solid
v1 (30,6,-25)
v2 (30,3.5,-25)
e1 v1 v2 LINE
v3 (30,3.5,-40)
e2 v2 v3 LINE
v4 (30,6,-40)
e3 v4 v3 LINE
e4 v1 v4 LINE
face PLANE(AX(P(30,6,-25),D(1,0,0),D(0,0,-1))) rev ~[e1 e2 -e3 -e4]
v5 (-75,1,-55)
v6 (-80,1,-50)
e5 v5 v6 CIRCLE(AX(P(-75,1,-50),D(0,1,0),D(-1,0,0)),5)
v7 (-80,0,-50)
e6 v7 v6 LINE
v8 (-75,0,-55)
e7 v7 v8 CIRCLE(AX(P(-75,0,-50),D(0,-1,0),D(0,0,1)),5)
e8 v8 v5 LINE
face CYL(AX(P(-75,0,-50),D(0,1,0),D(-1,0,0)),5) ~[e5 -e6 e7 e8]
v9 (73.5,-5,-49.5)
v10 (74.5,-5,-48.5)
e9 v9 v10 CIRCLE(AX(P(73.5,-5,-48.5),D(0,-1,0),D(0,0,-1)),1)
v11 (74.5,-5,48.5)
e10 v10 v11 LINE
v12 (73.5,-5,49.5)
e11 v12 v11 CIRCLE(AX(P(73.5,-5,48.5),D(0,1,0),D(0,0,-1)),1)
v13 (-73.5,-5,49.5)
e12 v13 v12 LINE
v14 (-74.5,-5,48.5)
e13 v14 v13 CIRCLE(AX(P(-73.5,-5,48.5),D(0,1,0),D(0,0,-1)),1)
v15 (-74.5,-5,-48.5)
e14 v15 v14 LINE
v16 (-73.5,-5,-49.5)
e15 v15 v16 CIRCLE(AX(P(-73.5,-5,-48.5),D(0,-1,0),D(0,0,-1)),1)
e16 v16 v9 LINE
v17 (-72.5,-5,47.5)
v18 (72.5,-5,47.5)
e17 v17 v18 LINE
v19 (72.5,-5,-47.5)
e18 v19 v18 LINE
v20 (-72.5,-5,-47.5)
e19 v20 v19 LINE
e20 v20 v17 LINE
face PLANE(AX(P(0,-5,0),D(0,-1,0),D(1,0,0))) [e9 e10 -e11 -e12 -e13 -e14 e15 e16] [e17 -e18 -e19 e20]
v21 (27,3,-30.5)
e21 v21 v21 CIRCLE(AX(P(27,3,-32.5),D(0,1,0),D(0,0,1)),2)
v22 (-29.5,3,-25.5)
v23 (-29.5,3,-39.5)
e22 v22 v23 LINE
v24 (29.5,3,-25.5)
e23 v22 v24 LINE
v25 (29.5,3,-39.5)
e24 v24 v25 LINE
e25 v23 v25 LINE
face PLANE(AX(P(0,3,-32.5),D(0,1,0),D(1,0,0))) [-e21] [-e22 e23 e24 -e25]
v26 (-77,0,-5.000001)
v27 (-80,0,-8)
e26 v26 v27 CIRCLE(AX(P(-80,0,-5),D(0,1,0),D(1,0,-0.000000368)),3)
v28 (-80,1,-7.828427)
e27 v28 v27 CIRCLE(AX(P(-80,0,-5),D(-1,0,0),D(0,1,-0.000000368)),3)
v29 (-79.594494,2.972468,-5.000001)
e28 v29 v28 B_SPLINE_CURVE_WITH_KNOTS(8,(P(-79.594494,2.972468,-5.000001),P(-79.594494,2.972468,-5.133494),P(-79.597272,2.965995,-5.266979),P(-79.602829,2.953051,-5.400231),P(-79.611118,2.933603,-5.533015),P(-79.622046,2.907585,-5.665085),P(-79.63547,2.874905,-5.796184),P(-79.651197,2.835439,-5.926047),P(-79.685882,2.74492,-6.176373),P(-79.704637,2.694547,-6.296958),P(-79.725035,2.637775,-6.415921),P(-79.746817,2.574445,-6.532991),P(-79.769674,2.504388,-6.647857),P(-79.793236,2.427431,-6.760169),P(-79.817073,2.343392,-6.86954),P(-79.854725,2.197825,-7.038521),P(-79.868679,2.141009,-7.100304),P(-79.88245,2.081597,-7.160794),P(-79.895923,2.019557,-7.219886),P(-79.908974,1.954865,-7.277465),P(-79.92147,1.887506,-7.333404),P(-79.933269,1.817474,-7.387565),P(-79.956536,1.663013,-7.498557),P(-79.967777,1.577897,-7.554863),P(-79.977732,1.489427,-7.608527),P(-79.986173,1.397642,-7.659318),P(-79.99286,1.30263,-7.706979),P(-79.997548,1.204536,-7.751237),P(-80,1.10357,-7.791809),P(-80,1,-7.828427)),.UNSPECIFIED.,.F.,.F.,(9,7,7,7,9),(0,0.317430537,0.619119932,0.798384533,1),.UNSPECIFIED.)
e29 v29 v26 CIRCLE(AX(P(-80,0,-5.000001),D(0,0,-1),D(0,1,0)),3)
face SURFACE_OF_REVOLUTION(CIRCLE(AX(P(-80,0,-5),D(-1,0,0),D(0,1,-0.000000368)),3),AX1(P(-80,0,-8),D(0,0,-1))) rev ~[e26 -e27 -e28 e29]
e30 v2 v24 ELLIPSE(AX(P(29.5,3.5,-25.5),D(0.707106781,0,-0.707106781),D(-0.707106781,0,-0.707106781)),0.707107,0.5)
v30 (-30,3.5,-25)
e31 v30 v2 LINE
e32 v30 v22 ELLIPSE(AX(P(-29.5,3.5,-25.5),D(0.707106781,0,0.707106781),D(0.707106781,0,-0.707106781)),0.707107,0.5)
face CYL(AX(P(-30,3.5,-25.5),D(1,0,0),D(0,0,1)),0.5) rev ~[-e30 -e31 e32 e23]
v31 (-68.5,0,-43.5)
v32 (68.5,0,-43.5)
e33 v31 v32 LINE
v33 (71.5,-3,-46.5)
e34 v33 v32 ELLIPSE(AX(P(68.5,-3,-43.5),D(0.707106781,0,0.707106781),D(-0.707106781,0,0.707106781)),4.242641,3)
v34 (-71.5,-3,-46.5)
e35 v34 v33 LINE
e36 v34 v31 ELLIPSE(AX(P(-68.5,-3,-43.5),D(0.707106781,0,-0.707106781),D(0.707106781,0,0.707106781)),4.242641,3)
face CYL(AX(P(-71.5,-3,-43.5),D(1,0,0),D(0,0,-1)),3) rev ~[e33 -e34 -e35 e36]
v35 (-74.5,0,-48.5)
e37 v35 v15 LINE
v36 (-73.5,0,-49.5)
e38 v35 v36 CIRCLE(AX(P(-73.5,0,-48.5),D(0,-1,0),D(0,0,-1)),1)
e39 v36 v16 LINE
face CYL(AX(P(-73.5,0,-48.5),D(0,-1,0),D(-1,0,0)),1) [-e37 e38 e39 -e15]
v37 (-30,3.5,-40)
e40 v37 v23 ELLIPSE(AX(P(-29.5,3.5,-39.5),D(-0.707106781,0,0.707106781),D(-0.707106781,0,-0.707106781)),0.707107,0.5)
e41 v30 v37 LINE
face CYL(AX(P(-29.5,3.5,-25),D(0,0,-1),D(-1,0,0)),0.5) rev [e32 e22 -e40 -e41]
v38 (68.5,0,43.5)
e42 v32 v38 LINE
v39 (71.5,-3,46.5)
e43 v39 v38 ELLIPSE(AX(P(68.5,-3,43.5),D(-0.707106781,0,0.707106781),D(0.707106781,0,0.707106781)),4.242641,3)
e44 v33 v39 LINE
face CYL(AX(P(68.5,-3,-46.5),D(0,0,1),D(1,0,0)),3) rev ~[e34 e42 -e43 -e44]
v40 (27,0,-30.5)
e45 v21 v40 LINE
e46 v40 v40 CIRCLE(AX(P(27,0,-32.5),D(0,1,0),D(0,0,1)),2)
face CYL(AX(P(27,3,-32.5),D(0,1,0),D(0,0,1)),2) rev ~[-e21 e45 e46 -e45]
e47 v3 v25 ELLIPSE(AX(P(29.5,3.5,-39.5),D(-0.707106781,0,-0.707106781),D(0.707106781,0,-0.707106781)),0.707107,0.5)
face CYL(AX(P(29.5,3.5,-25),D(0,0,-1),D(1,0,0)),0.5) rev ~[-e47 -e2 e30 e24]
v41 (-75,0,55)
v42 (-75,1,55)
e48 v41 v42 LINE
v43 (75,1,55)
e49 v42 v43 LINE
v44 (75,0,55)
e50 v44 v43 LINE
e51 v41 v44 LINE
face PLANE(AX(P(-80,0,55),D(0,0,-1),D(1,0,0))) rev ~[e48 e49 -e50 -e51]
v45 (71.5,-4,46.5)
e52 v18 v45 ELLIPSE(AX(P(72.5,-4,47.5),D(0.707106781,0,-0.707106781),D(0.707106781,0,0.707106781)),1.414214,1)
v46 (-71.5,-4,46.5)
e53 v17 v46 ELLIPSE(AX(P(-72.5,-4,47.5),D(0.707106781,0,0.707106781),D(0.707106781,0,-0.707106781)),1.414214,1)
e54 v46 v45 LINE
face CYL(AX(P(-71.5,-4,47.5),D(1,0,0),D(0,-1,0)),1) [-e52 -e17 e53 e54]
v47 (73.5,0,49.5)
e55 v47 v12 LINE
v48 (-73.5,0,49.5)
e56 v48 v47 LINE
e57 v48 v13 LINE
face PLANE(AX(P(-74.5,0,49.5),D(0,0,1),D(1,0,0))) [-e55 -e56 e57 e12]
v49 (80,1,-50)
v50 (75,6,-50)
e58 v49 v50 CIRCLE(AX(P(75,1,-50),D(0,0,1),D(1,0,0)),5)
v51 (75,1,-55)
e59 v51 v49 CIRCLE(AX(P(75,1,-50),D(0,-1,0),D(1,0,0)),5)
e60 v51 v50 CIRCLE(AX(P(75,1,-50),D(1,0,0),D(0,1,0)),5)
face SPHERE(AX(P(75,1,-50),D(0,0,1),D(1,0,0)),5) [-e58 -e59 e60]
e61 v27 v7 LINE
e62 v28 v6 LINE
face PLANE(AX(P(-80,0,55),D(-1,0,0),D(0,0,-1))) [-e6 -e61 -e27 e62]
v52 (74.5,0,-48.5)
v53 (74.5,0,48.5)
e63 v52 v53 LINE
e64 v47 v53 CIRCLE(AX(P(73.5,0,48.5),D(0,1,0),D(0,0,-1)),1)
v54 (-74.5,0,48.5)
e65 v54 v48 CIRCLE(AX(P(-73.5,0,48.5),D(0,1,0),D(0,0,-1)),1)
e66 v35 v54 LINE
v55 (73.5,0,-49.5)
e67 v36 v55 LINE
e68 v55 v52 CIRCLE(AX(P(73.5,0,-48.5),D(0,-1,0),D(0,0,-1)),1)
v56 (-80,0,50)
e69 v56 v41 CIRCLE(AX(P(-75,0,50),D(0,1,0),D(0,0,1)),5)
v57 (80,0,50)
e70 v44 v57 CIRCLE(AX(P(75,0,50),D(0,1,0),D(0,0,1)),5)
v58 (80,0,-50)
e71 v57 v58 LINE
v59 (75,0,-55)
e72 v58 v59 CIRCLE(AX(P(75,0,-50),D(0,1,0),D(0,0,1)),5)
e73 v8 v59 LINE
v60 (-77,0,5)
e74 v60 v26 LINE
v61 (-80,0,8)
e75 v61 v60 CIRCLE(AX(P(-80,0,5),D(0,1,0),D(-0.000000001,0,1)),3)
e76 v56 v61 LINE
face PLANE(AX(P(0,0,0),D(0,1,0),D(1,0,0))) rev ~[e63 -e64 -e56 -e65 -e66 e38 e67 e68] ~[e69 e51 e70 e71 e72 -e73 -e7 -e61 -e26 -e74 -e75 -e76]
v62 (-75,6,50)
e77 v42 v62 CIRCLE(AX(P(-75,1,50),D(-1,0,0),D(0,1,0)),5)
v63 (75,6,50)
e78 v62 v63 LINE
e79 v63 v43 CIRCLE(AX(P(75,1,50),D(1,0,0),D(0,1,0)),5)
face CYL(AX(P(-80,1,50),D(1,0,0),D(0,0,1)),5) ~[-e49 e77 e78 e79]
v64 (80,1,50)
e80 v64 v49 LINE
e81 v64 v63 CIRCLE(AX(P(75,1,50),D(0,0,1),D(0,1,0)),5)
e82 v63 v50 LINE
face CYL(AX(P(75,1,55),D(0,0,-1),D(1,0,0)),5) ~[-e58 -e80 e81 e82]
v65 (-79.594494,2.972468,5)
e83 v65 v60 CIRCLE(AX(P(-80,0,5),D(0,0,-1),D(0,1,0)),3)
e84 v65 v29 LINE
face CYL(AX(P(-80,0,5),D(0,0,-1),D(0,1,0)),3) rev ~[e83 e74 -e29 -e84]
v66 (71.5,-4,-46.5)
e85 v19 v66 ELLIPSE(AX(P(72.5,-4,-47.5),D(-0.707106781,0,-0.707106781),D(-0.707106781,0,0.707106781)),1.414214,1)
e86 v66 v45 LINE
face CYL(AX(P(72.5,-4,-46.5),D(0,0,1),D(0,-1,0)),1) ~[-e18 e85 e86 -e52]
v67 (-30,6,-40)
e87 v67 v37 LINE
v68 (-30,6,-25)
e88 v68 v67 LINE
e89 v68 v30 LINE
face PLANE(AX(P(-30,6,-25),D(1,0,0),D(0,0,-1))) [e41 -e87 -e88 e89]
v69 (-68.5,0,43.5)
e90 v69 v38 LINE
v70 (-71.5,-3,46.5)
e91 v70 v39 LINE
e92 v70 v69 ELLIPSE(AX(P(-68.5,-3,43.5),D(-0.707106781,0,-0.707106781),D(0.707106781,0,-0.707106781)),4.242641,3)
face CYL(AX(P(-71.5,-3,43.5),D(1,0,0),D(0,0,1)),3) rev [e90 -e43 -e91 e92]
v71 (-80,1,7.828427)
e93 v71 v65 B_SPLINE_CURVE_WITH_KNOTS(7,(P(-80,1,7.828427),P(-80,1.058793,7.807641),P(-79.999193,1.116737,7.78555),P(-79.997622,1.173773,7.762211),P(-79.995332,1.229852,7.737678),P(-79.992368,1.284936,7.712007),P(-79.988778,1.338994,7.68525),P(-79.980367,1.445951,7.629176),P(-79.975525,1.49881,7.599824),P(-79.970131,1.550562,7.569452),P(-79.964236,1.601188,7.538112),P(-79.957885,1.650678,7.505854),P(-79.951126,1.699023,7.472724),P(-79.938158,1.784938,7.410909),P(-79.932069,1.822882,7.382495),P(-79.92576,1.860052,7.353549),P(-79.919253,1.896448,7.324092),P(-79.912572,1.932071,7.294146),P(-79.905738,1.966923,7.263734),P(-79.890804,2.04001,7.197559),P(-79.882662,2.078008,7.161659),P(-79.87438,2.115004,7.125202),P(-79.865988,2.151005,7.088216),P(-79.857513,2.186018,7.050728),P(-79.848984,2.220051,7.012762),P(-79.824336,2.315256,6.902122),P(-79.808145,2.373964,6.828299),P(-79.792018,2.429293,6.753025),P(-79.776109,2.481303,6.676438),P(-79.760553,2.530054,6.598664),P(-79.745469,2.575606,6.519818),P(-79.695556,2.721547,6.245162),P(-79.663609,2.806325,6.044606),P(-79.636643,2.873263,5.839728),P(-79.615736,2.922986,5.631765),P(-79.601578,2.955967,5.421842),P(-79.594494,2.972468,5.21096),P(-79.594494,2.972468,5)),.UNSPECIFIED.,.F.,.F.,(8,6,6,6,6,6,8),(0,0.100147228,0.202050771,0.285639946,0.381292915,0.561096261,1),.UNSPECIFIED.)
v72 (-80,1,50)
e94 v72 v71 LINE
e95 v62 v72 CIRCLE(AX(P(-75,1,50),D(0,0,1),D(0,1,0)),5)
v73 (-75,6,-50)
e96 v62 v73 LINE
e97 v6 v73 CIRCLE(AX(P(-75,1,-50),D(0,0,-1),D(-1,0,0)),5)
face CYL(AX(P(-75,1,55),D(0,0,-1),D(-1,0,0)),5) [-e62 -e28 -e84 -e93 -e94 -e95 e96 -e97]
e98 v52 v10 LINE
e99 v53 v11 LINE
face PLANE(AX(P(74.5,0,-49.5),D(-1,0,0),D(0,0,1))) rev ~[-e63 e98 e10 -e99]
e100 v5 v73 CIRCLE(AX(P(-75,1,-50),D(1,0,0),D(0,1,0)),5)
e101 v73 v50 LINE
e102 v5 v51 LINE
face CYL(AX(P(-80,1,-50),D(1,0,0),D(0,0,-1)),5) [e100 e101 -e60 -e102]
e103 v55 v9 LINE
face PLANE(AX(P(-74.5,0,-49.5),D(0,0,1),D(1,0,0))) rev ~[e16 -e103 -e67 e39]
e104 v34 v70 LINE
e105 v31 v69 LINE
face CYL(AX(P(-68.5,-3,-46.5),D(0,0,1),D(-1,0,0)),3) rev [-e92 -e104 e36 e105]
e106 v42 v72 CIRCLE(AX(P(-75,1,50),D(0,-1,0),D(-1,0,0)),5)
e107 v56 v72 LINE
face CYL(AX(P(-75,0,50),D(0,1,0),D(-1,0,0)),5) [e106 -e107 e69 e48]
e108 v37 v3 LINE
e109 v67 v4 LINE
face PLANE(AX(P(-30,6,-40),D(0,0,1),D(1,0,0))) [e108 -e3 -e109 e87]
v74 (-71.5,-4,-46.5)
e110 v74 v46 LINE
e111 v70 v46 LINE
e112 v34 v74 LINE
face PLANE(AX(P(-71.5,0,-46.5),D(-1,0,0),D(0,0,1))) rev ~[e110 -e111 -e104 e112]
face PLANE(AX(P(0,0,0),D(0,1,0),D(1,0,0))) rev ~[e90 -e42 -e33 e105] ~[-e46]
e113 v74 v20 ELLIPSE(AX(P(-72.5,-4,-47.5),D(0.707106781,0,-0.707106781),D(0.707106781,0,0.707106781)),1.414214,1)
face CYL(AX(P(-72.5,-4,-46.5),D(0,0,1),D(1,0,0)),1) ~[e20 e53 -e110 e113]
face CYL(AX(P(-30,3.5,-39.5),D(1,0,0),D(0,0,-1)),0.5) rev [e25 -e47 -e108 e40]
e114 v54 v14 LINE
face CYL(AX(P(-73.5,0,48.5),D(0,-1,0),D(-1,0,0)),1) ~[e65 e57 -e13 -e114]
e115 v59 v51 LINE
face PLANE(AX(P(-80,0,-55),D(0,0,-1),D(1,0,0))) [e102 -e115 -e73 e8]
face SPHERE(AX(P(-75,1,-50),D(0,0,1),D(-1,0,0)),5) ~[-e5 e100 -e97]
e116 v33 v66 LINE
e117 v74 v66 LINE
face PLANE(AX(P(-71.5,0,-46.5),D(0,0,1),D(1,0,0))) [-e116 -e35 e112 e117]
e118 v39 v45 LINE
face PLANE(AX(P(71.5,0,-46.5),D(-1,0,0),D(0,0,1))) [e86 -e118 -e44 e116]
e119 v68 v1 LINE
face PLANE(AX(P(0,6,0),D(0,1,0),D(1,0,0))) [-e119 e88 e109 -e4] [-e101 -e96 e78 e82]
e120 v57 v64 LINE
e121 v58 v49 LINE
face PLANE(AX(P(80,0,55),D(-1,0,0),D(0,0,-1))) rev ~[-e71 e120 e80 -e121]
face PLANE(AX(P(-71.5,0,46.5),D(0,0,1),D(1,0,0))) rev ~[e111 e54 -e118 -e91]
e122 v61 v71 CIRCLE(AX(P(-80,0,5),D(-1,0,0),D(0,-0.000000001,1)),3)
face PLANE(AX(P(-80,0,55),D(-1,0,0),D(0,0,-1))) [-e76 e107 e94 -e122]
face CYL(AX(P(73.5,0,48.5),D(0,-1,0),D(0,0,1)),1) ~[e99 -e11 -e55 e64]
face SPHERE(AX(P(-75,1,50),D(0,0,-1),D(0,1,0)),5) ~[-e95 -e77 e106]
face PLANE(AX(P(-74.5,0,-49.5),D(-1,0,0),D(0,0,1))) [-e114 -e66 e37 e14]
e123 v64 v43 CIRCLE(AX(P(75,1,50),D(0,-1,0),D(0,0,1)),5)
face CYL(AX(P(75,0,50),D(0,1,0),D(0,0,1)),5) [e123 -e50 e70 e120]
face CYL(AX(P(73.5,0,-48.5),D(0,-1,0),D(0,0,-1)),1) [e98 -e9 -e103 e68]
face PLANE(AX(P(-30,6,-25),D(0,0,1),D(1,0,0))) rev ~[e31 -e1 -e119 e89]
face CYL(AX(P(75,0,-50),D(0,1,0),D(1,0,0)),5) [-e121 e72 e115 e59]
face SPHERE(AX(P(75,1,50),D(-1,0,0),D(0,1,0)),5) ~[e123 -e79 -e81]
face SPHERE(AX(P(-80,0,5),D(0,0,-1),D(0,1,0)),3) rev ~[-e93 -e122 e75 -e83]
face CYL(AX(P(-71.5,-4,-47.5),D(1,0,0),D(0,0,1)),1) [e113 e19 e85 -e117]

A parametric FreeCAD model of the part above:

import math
import FreeCAD as App
import Part
import Sketcher


def edges_at(feature, points):
    """Names of the edges that pass closest to the given points."""
    edges = feature.Shape.Edges
    near = lambda p: min(range(len(edges)), key=lambda i: edges[i].distToShape(Part.Vertex(*p))[0])
    return sorted({f"Edge{near(p) + 1}" for p in points})

doc = App.newDocument("Part")
body = doc.addObject("PartDesign::Body", "Body")

# Sketch on XZ plane
sketch1 = body.newObject("Sketcher::SketchObject", "Sketch")
sketch1.AttachmentSupport = (doc.getObject("XZ_Plane"), [""])
sketch1.MapMode = "FlatFace"
sketch1.addGeometry([
    Part.LineSegment(App.Vector(-80, -55, 0), App.Vector(-80, 55, 0)),
    Part.LineSegment(App.Vector(-80, 55, 0), App.Vector(80, 55, 0)),
    Part.LineSegment(App.Vector(80, 55, 0), App.Vector(80, -55, 0)),
    Part.LineSegment(App.Vector(80, -55, 0), App.Vector(-80, -55, 0)),
], False)
sketch1.addConstraint([
    Sketcher.Constraint("Coincident", 0, 2, 1, 1),
    Sketcher.Constraint("Coincident", 1, 2, 2, 1),
    Sketcher.Constraint("Coincident", 2, 2, 3, 1),
    Sketcher.Constraint("Coincident", 3, 2, 0, 1),
    Sketcher.Constraint("Vertical", 0),
    Sketcher.Constraint("Horizontal", 1),
    Sketcher.Constraint("Vertical", 2),
    Sketcher.Constraint("Horizontal", 3),
    Sketcher.Constraint("Symmetric", 0, 2, 2, 2, -1, 1),
    Sketcher.Constraint("DistanceX", 1, 1, 1, 2, 160.0),
    Sketcher.Constraint("DistanceY", 0, 1, 0, 2, 110.0),
])
pad1 = body.newObject("PartDesign::Pad", "Pad")
pad1.Profile = sketch1
pad1.Length = 6
pad1.Reversed = True
doc.recompute()

fillet = body.newObject("PartDesign::Fillet", "Fillet")
fillet.Base = (pad1, edges_at(pad1, [
    (-80, 6, 0),
    (0, 6, 55),
    (80, 6, 0),
    (80, 3, 55),
    (-80, 3, 55),
    (-80, 3, -55),
    (80, 3, -55),
    (0, 6, -55),
]))
fillet.Radius = 5

# Sketch on XZ plane
sketch2 = body.newObject("Sketcher::SketchObject", "Sketch001")
sketch2.AttachmentSupport = (doc.getObject("XZ_Plane"), [""])
sketch2.MapMode = "FlatFace"
sketch2.addGeometry([
    Part.LineSegment(App.Vector(-74, 50, 0), App.Vector(-74, -50, 0)),  # 0
    Part.LineSegment(App.Vector(-74, -50, 0), App.Vector(74, -50, 0)),  # 1
    Part.LineSegment(App.Vector(74, -50, 0), App.Vector(74, 50, 0)),  # 2
    Part.LineSegment(App.Vector(74, 50, 0), App.Vector(-74, 50, 0)),  # 3
    Part.LineSegment(App.Vector(72, -46, 0), App.Vector(-72, -46, 0)),  # 4
    Part.LineSegment(App.Vector(-72, -46, 0), App.Vector(-72, 46, 0)),  # 5
    Part.LineSegment(App.Vector(-72, 46, 0), App.Vector(72, 46, 0)),  # 6
    Part.LineSegment(App.Vector(72, 46, 0), App.Vector(72, -46, 0)),  # 7
], False)
sketch2.addConstraint([
    Sketcher.Constraint("Coincident", 0, 2, 1, 1),
    Sketcher.Constraint("Coincident", 1, 2, 2, 1),
    Sketcher.Constraint("Coincident", 2, 2, 3, 1),
    Sketcher.Constraint("Coincident", 3, 2, 0, 1),
    Sketcher.Constraint("Coincident", 4, 2, 5, 1),
    Sketcher.Constraint("Coincident", 5, 2, 6, 1),
    Sketcher.Constraint("Coincident", 6, 2, 7, 1),
    Sketcher.Constraint("Coincident", 7, 2, 4, 1),
    Sketcher.Constraint("Vertical", 0),
    Sketcher.Constraint("Horizontal", 1),
    Sketcher.Constraint("Vertical", 2),
    Sketcher.Constraint("Horizontal", 3),
    Sketcher.Constraint("Horizontal", 4),
    Sketcher.Constraint("Vertical", 5),
    Sketcher.Constraint("Horizontal", 6),
    Sketcher.Constraint("Vertical", 7),
    Sketcher.Constraint("Symmetric", 0, 2, 2, 2, -1, 1),
    Sketcher.Constraint("Symmetric", 4, 2, 6, 2, -1, 1),
    Sketcher.Constraint("DistanceX", 1, 1, 1, 2, 149.0),
    Sketcher.Constraint("DistanceX", 4, 2, 4, 1, 143.0),
    Sketcher.Constraint("DistanceY", 0, 2, 0, 1, 99.0),
    Sketcher.Constraint("DistanceY", 5, 1, 5, 2, 93.0),
])
pad2 = body.newObject("PartDesign::Pad", "Pad001")
pad2.Profile = sketch2
pad2.Length = 5
doc.recompute()

fillet2 = body.newObject("PartDesign::Fillet", "Fillet001")
fillet2.Base = (pad2, edges_at(pad2, [
    (71.5, 0, 0),
    (0, 0, 46.5),
    (-71.5, 0, 0),
    (0, 0, -46.5),
]))
fillet2.Radius = 3
doc.recompute()

fillet3 = body.newObject("PartDesign::Fillet", "Fillet002")
fillet3.Base = (fillet2, edges_at(fillet2, [
    (71.5, -5, 0),
    (0, -5, 46.5),
    (-71.5, -5, 0),
    (0, -5, -46.5),
]))
fillet3.Radius = 1

# Sketch on YZ plane
sketch3 = body.newObject("Sketcher::SketchObject", "Sketch002")
sketch3.AttachmentSupport = (doc.getObject("YZ_Plane"), [""])
sketch3.MapMode = "FlatFace"
sketch3.AttachmentOffset = App.Placement(App.Vector(0, 0, -80), App.Rotation())
sketch3.addGeometry([
    Part.LineSegment(App.Vector(0, -8, 0), App.Vector(0, 8, 0)),
    Part.ArcOfCircle(Part.Circle(App.Vector(0, 5, 0), App.Vector(0, 0, 1), 3), math.radians(0), math.radians(90)),
    Part.LineSegment(App.Vector(3, 5, 0), App.Vector(3, -5, 0)),
    Part.ArcOfCircle(Part.Circle(App.Vector(0, -5, 0), App.Vector(0, 0, 1), 3), math.radians(-90), math.radians(0)),
], False)
sketch3.addConstraint([
    Sketcher.Constraint("Coincident", 0, 2, 1, 2),
    Sketcher.Constraint("Tangent", 1, 1, 2, 1),
    Sketcher.Constraint("Tangent", 2, 2, 3, 2),
    Sketcher.Constraint("Coincident", 3, 1, 0, 1),
    Sketcher.Constraint("Vertical", 0),
    Sketcher.Constraint("Vertical", 2),
    Sketcher.Constraint("Equal", 1, 3),
    Sketcher.Constraint("Symmetric", 1, 3, 3, 3, -1, 1),
    Sketcher.Constraint("PointOnObject", 0, 2, -2),
    Sketcher.Constraint("Radius", 1, 3.0),
    Sketcher.Constraint("DistanceY", 0, 1, 0, 2, 16.0),
])
groove = body.newObject("PartDesign::Groove", "Groove")
groove.Profile = sketch3
groove.ReferenceAxis = (sketch3, ["V_Axis"])
groove.Angle = 90
groove.Reversed = True

# Sketch on XZ plane
sketch4 = body.newObject("Sketcher::SketchObject", "Sketch003")
sketch4.AttachmentSupport = (doc.getObject("XZ_Plane"), [""])
sketch4.MapMode = "FlatFace"
sketch4.AttachmentOffset = App.Placement(App.Vector(0, 0, -6), App.Rotation())
sketch4.addGeometry([
    Part.LineSegment(App.Vector(-30, -40, 0), App.Vector(-30, -25, 0)),
    Part.LineSegment(App.Vector(-30, -25, 0), App.Vector(30, -25, 0)),
    Part.LineSegment(App.Vector(30, -25, 0), App.Vector(30, -40, 0)),
    Part.LineSegment(App.Vector(30, -40, 0), App.Vector(-30, -40, 0)),
], False)
sketch4.addConstraint([
    Sketcher.Constraint("Coincident", 0, 2, 1, 1),
    Sketcher.Constraint("Coincident", 1, 2, 2, 1),
    Sketcher.Constraint("Coincident", 2, 2, 3, 1),
    Sketcher.Constraint("Coincident", 3, 2, 0, 1),
    Sketcher.Constraint("Vertical", 0),
    Sketcher.Constraint("Horizontal", 1),
    Sketcher.Constraint("Vertical", 2),
    Sketcher.Constraint("Horizontal", 3),
    Sketcher.Constraint("DistanceX", 1, 1, 1, 2, 60.0),
    Sketcher.Constraint("DistanceY", 0, 1, 0, 2, 15.0),
    Sketcher.Constraint("DistanceX", 0, 2, -1, 1, 30.0),
    Sketcher.Constraint("DistanceY", 0, 2, -1, 1, 25.0),
])
pocket1 = body.newObject("PartDesign::Pocket", "Pocket")
pocket1.Profile = sketch4
pocket1.Length = 3
pocket1.Reversed = True
doc.recompute()

fillet4 = body.newObject("PartDesign::Fillet", "Fillet003")
fillet4.Base = (pocket1, edges_at(pocket1, [
    (30, 3, -32.5),
    (0, 3, -25),
    (-30, 3, -32.5),
    (0, 3, -40),
]))
fillet4.Radius = 0.5

# Sketch on XZ plane
sketch5 = body.newObject("Sketcher::SketchObject", "Sketch004")
sketch5.AttachmentSupport = (doc.getObject("XZ_Plane"), [""])
sketch5.MapMode = "FlatFace"
sketch5.AttachmentOffset = App.Placement(App.Vector(0, 0, -3), App.Rotation())
sketch5.addGeometry(Part.Circle(App.Vector(27, -32.5, 0), App.Vector(0, 0, 1), 2), False)
sketch5.addConstraint([
    Sketcher.Constraint("Diameter", 0, 4.0),
    Sketcher.Constraint("DistanceX", -1, 1, 0, 3, 27.0),
    Sketcher.Constraint("DistanceY", 0, 3, -1, 1, 32.5),
])
pocket2 = body.newObject("PartDesign::Pocket", "Pocket001")
pocket2.Profile = sketch5
pocket2.Length = 5
pocket2.Reversed = True
doc.recompute()

fillet5 = body.newObject("PartDesign::Fillet", "Fillet004")
fillet5.Base = (pocket2, edges_at(pocket2, [
    (74.5, -2.5, -49.5),
    (74.5, -2.5, 49.5),
    (-74.5, -2.5, 49.5),
    (-74.5, -2.5, -49.5),
]))
fillet5.Radius = 1

doc.recompute()
